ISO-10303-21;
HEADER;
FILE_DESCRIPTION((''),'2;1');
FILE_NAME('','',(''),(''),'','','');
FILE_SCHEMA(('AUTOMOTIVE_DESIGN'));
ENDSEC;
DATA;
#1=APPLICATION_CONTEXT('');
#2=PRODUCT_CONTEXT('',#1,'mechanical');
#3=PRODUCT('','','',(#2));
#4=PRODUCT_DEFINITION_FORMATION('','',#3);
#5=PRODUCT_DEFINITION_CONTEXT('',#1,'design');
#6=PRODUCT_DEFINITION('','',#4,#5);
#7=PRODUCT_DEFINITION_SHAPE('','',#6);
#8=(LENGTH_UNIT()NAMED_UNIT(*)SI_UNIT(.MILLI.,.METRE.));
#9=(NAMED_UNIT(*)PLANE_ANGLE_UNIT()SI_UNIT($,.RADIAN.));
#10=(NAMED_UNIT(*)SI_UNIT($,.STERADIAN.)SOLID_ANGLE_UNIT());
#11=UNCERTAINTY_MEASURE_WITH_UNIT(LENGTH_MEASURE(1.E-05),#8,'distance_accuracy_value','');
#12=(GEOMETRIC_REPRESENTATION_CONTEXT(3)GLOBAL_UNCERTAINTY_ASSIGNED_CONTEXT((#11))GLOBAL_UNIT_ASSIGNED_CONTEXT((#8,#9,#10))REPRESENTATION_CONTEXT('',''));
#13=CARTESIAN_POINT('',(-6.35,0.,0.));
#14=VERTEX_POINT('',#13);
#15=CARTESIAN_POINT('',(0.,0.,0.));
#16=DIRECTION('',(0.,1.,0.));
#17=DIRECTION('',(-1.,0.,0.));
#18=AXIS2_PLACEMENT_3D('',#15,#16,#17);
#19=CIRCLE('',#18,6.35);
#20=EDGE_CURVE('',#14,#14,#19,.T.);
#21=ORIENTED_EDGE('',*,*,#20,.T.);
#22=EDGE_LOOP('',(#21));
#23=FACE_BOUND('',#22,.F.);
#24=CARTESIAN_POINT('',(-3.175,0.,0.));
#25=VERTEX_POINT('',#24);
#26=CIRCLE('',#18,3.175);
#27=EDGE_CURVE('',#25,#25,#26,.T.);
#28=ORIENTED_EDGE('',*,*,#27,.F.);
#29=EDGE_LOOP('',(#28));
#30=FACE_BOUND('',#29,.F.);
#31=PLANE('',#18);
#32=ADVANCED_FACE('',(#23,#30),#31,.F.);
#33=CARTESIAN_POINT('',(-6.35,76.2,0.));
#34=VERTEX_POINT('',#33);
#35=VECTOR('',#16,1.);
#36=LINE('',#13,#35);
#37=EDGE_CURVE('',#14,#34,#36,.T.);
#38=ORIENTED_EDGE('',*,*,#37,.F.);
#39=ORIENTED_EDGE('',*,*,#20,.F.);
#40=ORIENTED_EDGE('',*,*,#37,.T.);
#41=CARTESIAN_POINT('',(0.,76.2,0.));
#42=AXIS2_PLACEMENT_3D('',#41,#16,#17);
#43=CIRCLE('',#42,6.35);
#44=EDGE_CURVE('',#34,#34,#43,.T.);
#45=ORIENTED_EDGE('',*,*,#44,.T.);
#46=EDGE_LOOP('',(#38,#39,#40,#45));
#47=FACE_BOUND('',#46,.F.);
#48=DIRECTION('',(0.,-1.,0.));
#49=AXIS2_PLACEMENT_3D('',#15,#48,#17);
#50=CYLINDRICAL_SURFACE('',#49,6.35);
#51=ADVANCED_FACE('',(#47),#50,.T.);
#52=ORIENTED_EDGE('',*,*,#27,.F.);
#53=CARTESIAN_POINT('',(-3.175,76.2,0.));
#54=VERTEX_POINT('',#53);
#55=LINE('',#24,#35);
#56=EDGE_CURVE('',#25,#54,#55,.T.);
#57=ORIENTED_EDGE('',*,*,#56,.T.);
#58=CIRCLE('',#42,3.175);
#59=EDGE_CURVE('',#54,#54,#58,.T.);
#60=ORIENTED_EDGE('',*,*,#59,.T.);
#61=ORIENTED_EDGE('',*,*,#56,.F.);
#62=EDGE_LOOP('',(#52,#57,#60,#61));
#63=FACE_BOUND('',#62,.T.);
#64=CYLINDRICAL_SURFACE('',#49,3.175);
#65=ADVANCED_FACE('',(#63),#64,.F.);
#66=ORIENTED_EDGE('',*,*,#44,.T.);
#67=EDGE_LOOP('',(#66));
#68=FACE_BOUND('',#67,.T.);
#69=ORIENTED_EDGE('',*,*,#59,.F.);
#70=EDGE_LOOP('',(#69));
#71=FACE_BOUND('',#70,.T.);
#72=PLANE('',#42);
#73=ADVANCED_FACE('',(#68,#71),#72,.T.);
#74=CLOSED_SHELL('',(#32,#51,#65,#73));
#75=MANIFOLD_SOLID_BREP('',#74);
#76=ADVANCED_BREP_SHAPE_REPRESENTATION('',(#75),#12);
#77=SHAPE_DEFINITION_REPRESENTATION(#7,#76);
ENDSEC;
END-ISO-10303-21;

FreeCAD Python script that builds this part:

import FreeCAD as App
import Part
import Sketcher
Q = App.Units.Quantity

doc = App.newDocument("Part")
body = doc.addObject("PartDesign::Body", "Body")

sketch1 = body.newObject("Sketcher::SketchObject", "Sketch")
sketch1.AttachmentSupport = (doc.getObject("XZ_Plane"), [""])
sketch1.MapMode = "FlatFace"
sketch1.addGeometry([
    Part.Circle(App.Vector(0, 0, 0), App.Vector(0, 0, 1), 6.35),
    Part.Circle(App.Vector(0, 0, 0), App.Vector(0, 0, 1), 3.175),
], False)
sketch1.addConstraint([
    Sketcher.Constraint("Coincident", 0, 3, -1, 1),
    Sketcher.Constraint("Coincident", 1, 3, -1, 1),
    Sketcher.Constraint("Diameter", 0, Q("0.5 in")),
    Sketcher.Constraint("Diameter", 1, Q("0.25 in")),
])
pad1 = body.newObject("PartDesign::Pad", "Pad")
pad1.Profile = sketch1
pad1.Length = Q("3 in")
pad1.Reversed = True

doc.recompute()
